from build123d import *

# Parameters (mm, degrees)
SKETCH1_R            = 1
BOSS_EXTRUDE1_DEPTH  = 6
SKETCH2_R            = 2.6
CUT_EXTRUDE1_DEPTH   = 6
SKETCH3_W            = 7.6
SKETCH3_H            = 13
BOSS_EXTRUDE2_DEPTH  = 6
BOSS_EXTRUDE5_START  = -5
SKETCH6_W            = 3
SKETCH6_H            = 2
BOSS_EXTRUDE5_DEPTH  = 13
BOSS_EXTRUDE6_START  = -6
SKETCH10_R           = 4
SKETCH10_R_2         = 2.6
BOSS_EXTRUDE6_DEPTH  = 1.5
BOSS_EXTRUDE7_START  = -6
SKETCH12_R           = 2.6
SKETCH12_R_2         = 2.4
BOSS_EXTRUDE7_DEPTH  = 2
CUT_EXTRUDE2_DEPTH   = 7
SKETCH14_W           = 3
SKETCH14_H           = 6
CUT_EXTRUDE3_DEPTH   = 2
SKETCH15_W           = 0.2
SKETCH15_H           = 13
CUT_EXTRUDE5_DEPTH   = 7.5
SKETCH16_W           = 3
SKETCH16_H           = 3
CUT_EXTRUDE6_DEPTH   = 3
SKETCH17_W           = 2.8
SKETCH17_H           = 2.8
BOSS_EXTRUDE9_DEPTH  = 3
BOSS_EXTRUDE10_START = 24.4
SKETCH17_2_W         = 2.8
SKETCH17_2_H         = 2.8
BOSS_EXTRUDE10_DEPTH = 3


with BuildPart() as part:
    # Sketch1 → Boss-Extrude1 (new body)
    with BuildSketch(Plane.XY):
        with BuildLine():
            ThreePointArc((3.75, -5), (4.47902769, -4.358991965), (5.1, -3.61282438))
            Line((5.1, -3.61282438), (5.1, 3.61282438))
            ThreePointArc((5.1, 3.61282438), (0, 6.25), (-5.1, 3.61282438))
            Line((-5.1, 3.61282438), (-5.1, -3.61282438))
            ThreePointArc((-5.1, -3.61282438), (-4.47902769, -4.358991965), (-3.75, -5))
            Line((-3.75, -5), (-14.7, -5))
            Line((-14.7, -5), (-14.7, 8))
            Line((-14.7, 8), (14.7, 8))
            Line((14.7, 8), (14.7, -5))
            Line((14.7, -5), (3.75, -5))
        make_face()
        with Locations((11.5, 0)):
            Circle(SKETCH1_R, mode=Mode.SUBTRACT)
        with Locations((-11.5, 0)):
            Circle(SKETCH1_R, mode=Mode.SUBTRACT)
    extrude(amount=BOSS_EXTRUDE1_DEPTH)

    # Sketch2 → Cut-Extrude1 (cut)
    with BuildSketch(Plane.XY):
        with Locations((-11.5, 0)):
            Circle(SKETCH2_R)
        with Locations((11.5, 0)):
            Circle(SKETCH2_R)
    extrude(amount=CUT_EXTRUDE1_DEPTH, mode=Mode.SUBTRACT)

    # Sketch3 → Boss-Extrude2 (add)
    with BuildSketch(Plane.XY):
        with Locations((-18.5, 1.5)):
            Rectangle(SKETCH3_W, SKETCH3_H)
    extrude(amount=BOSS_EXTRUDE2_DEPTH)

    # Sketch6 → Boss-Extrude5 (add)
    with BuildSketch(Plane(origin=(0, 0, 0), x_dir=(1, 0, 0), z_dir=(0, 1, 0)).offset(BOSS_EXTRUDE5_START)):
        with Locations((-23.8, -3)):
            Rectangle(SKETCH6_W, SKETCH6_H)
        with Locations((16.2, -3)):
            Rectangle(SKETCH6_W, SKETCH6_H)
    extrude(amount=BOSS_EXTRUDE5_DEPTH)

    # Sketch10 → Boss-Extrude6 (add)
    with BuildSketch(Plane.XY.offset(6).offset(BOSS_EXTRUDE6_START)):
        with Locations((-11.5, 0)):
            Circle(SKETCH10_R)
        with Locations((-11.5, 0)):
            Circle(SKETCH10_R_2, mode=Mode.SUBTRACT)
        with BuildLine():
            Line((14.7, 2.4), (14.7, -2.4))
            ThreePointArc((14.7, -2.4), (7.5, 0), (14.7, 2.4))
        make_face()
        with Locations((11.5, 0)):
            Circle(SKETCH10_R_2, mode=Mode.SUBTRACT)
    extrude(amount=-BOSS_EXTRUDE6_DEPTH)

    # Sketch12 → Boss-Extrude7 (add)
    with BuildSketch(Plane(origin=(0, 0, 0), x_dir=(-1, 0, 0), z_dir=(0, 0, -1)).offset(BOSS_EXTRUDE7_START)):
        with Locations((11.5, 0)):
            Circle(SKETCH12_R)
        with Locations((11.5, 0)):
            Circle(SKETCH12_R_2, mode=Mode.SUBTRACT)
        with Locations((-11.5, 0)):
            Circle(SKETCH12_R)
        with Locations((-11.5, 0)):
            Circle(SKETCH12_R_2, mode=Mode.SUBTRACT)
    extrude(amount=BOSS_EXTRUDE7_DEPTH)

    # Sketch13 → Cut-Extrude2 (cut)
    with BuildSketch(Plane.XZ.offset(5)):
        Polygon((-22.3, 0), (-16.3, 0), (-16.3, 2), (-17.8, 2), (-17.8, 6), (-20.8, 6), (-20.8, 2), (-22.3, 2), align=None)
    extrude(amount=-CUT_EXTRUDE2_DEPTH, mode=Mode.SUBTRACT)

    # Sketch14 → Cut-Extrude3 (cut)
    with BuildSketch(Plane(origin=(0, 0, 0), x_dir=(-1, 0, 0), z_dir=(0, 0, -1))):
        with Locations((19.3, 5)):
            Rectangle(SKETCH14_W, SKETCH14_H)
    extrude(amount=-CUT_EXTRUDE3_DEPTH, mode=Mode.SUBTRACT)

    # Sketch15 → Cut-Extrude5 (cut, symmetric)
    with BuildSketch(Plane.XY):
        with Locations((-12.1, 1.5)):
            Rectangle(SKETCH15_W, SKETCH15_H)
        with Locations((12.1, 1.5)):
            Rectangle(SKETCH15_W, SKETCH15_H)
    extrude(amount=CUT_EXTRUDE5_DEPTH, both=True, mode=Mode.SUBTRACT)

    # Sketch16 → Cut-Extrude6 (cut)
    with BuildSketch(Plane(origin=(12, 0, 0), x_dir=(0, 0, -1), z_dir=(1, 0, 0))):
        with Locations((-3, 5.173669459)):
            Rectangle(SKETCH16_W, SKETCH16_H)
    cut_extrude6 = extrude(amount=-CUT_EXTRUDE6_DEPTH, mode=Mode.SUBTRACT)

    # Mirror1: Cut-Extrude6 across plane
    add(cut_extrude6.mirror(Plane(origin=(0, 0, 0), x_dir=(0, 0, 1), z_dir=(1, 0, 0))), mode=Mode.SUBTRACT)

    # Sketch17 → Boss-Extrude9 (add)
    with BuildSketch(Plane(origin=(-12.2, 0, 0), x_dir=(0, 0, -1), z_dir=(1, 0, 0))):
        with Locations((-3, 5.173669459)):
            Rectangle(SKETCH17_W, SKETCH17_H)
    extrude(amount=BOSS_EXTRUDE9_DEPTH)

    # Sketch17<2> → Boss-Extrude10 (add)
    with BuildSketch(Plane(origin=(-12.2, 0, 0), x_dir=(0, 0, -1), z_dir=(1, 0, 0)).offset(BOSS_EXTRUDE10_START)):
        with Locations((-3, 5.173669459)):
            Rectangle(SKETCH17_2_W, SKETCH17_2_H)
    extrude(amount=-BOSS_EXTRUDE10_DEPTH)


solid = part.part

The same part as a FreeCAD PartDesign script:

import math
import FreeCAD as App
import Part
import Sketcher
from FreeCAD import Vector

doc = App.newDocument("Part")
body = doc.addObject("PartDesign::Body", "Body")
body.AllowCompound = True

# Sketch on XY plane
sketch1 = body.newObject("Sketcher::SketchObject", "Sketch")
sketch1.AttachmentSupport = (doc.getObject("XY_Plane"), [""])
sketch1.MapMode = "FlatFace"
sketch1.addGeometry(Part.ArcOfCircle(Part.Circle(Vector(0, 0, 0), Vector(0, 0, 1), 6.25), math.radians(-53.130102), math.radians(-35.31364)), False)
sketch1.addGeometry(Part.LineSegment(Vector(3.75, -5, 0), Vector(14.7, -5, 0)), False)
sketch1.addGeometry(Part.LineSegment(Vector(14.7, -5, 0), Vector(14.7, 8, 0)), False)
sketch1.addGeometry(Part.LineSegment(Vector(14.7, 8, 0), Vector(-14.7, 8, 0)), False)
sketch1.addGeometry(Part.LineSegment(Vector(-14.7, 8, 0), Vector(-14.7, -5, 0)), False)
sketch1.addGeometry(Part.LineSegment(Vector(-14.7, -5, 0), Vector(-3.75, -5, 0)), False)
sketch1.addGeometry(Part.ArcOfCircle(Part.Circle(Vector(0, 0, 0), Vector(0, 0, 1), 6.25), math.radians(-144.68636), math.radians(-126.869898)), False)
sketch1.addGeometry(Part.LineSegment(Vector(-5.1, -3.612824, 0), Vector(-5.1, 3.612824, 0)), False)
sketch1.addGeometry(Part.ArcOfCircle(Part.Circle(Vector(0, 0, 0), Vector(0, 0, 1), 6.25), math.radians(35.31364), math.radians(144.68636)), False)
sketch1.addGeometry(Part.LineSegment(Vector(5.1, 3.612824, 0), Vector(5.1, -3.612824, 0)), False)
sketch1.addGeometry(Part.Circle(Vector(11.5, 0, 0), Vector(0, 0, 1), 1), False)
sketch1.addGeometry(Part.Circle(Vector(-11.5, 0, 0), Vector(0, 0, 1), 1), False)
sketch1.addConstraint(Sketcher.Constraint("Coincident", 0, 1, 1, 1))
sketch1.addConstraint(Sketcher.Constraint("Coincident", 1, 2, 2, 1))
sketch1.addConstraint(Sketcher.Constraint("Coincident", 2, 2, 3, 1))
sketch1.addConstraint(Sketcher.Constraint("Coincident", 3, 2, 4, 1))
sketch1.addConstraint(Sketcher.Constraint("Coincident", 4, 2, 5, 1))
sketch1.addConstraint(Sketcher.Constraint("Coincident", 5, 2, 6, 2))
sketch1.addConstraint(Sketcher.Constraint("Coincident", 6, 1, 7, 1))
sketch1.addConstraint(Sketcher.Constraint("Coincident", 7, 2, 8, 2))
sketch1.addConstraint(Sketcher.Constraint("Coincident", 8, 1, 9, 1))
sketch1.addConstraint(Sketcher.Constraint("Coincident", 9, 2, 0, 2))
sketch1.addConstraint(Sketcher.Constraint("Horizontal", 1))
sketch1.addConstraint(Sketcher.Constraint("Vertical", 2))
sketch1.addConstraint(Sketcher.Constraint("Horizontal", 3))
sketch1.addConstraint(Sketcher.Constraint("Vertical", 4))
sketch1.addConstraint(Sketcher.Constraint("Horizontal", 5))
sketch1.addConstraint(Sketcher.Constraint("Vertical", 7))
sketch1.addConstraint(Sketcher.Constraint("Vertical", 9))
sketch1.addConstraint(Sketcher.Constraint("Coincident", 0, 3, -1, 1))
sketch1.addConstraint(Sketcher.Constraint("Coincident", 6, 3, -1, 1))
sketch1.addConstraint(Sketcher.Constraint("Coincident", 8, 3, -1, 1))
sketch1.addConstraint(Sketcher.Constraint("Equal", 0, 6))
sketch1.addConstraint(Sketcher.Constraint("Equal", 6, 8))
sketch1.addConstraint(Sketcher.Constraint("Equal", 10, 11))
sketch1.addConstraint(Sketcher.Constraint("Symmetric", 10, 3, 11, 3, -1, 1))
sketch1.addConstraint(Sketcher.Constraint("Symmetric", 1, 2, 4, 2, -2))
sketch1.addConstraint(Sketcher.Constraint("PointOnObject", 10, 3, -1))
sketch1.addConstraint(Sketcher.Constraint("Horizontal", 7, 2, 8, 1))
sketch1.addConstraint(Sketcher.Constraint("Diameter", 10, 2.0))
sketch1.addConstraint(Sketcher.Constraint("DistanceY", 2, 1, 2, 2, 13.0))
sketch1.addConstraint(Sketcher.Constraint("Radius", 0, 6.25))
sketch1.addConstraint(Sketcher.Constraint("DistanceX", 3, 2, 3, 1, 29.4))
sketch1.addConstraint(Sketcher.Constraint("DistanceY", 0, 1, -1, 1, 5.0))
sketch1.addConstraint(Sketcher.Constraint("DistanceX", 11, 3, 10, 3, 23.0))
sketch1.addConstraint(Sketcher.Constraint("DistanceX", 6, 1, -1, 1, 5.1))
pad1 = body.newObject("PartDesign::Pad", "Pad")
pad1.Profile = sketch1
pad1.Length = 6

# Sketch on XY plane
sketch2 = body.newObject("Sketcher::SketchObject", "Sketch001")
sketch2.AttachmentSupport = (doc.getObject("XY_Plane"), [""])
sketch2.MapMode = "FlatFace"
sketch2.addGeometry(Part.Circle(Vector(-11.5, 0, 0), Vector(0, 0, 1), 2.6), False)
sketch2.addGeometry(Part.Circle(Vector(11.5, 0, 0), Vector(0, 0, 1), 2.6), False)
sketch2.addConstraint(Sketcher.Constraint("Equal", 0, 1))
sketch2.addConstraint(Sketcher.Constraint("Symmetric", 0, 3, 1, 3, -1, 1))
sketch2.addConstraint(Sketcher.Constraint("PointOnObject", 0, 3, -1))
sketch2.addConstraint(Sketcher.Constraint("Diameter", 0, 5.2))
sketch2.addConstraint(Sketcher.Constraint("DistanceX", 0, 3, 1, 3, 23.0))
pocket1 = body.newObject("PartDesign::Pocket", "Pocket")
pocket1.Profile = sketch2
pocket1.Length = 6
pocket1.Reversed = True

# Sketch on XY plane
sketch3 = body.newObject("Sketcher::SketchObject", "Sketch002")
sketch3.AttachmentSupport = (doc.getObject("XY_Plane"), [""])
sketch3.MapMode = "FlatFace"
sketch3.addGeometry(Part.LineSegment(Vector(-22.3, 8, 0), Vector(-22.3, -5, 0)), False)
sketch3.addGeometry(Part.LineSegment(Vector(-22.3, -5, 0), Vector(-14.7, -5, 0)), False)
sketch3.addGeometry(Part.LineSegment(Vector(-14.7, -5, 0), Vector(-14.7, 8, 0)), False)
sketch3.addGeometry(Part.LineSegment(Vector(-14.7, 8, 0), Vector(-22.3, 8, 0)), False)
sketch3.addConstraint(Sketcher.Constraint("Coincident", 0, 2, 1, 1))
sketch3.addConstraint(Sketcher.Constraint("Coincident", 1, 2, 2, 1))
sketch3.addConstraint(Sketcher.Constraint("Coincident", 2, 2, 3, 1))
sketch3.addConstraint(Sketcher.Constraint("Coincident", 3, 2, 0, 1))
sketch3.addConstraint(Sketcher.Constraint("Vertical", 0))
sketch3.addConstraint(Sketcher.Constraint("Horizontal", 1))
sketch3.addConstraint(Sketcher.Constraint("Vertical", 2))
sketch3.addConstraint(Sketcher.Constraint("Horizontal", 3))
sketch3.addConstraint(Sketcher.Constraint("DistanceY", 0, 2, 0, 1, 13.0))
sketch3.addConstraint(Sketcher.Constraint("DistanceX", 1, 1, 1, 2, 7.6))
sketch3.addConstraint(Sketcher.Constraint("DistanceY", 0, 2, -1, 1, 5.0))
sketch3.addConstraint(Sketcher.Constraint("DistanceX", 0, 2, -1, 1, 22.3))
pad2 = body.newObject("PartDesign::Pad", "Pad001")
pad2.Profile = sketch3
pad2.Length = 6

# Sketch on XZ plane
sketch4 = body.newObject("Sketcher::SketchObject", "Sketch003")
sketch4.AttachmentSupport = (doc.getObject("XZ_Plane"), [""])
sketch4.MapMode = "FlatFace"
sketch4.AttachmentOffset = App.Placement(Vector(0, 0, 5), App.Rotation())
sketch4.addGeometry(Part.LineSegment(Vector(-25.3, 2, 0), Vector(-25.3, 4, 0)), False)
sketch4.addGeometry(Part.LineSegment(Vector(-25.3, 4, 0), Vector(-22.3, 4, 0)), False)
sketch4.addGeometry(Part.LineSegment(Vector(-22.3, 4, 0), Vector(-22.3, 2, 0)), False)
sketch4.addGeometry(Part.LineSegment(Vector(-22.3, 2, 0), Vector(-25.3, 2, 0)), False)
sketch4.addGeometry(Part.LineSegment(Vector(14.7, 2, 0), Vector(14.7, 4, 0)), False)
sketch4.addGeometry(Part.LineSegment(Vector(14.7, 4, 0), Vector(17.7, 4, 0)), False)
sketch4.addGeometry(Part.LineSegment(Vector(17.7, 4, 0), Vector(17.7, 2, 0)), False)
sketch4.addGeometry(Part.LineSegment(Vector(17.7, 2, 0), Vector(14.7, 2, 0)), False)
sketch4.addConstraint(Sketcher.Constraint("Coincident", 0, 2, 1, 1))
sketch4.addConstraint(Sketcher.Constraint("Coincident", 1, 2, 2, 1))
sketch4.addConstraint(Sketcher.Constraint("Coincident", 2, 2, 3, 1))
sketch4.addConstraint(Sketcher.Constraint("Coincident", 3, 2, 0, 1))
sketch4.addConstraint(Sketcher.Constraint("Coincident", 4, 2, 5, 1))
sketch4.addConstraint(Sketcher.Constraint("Coincident", 5, 2, 6, 1))
sketch4.addConstraint(Sketcher.Constraint("Coincident", 6, 2, 7, 1))
sketch4.addConstraint(Sketcher.Constraint("Coincident", 7, 2, 4, 1))
sketch4.addConstraint(Sketcher.Constraint("Vertical", 0))
sketch4.addConstraint(Sketcher.Constraint("Horizontal", 1))
sketch4.addConstraint(Sketcher.Constraint("Vertical", 2))
sketch4.addConstraint(Sketcher.Constraint("Horizontal", 3))
sketch4.addConstraint(Sketcher.Constraint("Vertical", 4))
sketch4.addConstraint(Sketcher.Constraint("Horizontal", 5))
sketch4.addConstraint(Sketcher.Constraint("Vertical", 6))
sketch4.addConstraint(Sketcher.Constraint("Horizontal", 7))
sketch4.addConstraint(Sketcher.Constraint("Horizontal", 1, 2, 4, 2))
sketch4.addConstraint(Sketcher.Constraint("Horizontal", 3, 2, 6, 2))
sketch4.addConstraint(Sketcher.Constraint("Equal", 3, 5))
sketch4.addConstraint(Sketcher.Constraint("DistanceX", 1, 1, 1, 2, 3.0))
sketch4.addConstraint(Sketcher.Constraint("DistanceY", 0, 1, 0, 2, 2.0))
sketch4.addConstraint(Sketcher.Constraint("DistanceY", -1, 1, 0, 2, 4.0))
sketch4.addConstraint(Sketcher.Constraint("DistanceX", 1, 2, 4, 2, 37.0))
sketch4.addConstraint(Sketcher.Constraint("DistanceX", 0, 2, -1, 1, 25.3))
pad3 = body.newObject("PartDesign::Pad", "Pad002")
pad3.Profile = sketch4
pad3.Length = 13
pad3.Reversed = True

# Sketch on XY plane
sketch5 = body.newObject("Sketcher::SketchObject", "Sketch004")
sketch5.AttachmentSupport = (doc.getObject("XY_Plane"), [""])
sketch5.MapMode = "FlatFace"
sketch5.addGeometry(Part.Circle(Vector(-11.5, 0, 0), Vector(0, 0, 1), 4), False)
sketch5.addGeometry(Part.Circle(Vector(-11.5, 0, 0), Vector(0, 0, 1), 2.6), False)
sketch5.addGeometry(Part.LineSegment(Vector(14.7, -2.4, 0), Vector(14.7, 2.4, 0)), False)
sketch5.addGeometry(Part.ArcOfCircle(Part.Circle(Vector(11.5, 0, 0), Vector(0, 0, 1), 4), math.radians(36.869898), math.radians(323.130102)), False)
sketch5.addGeometry(Part.Circle(Vector(11.5, 0, 0), Vector(0, 0, 1), 2.6), False)
sketch5.addConstraint(Sketcher.Constraint("Coincident", 2, 1, 3, 2))
sketch5.addConstraint(Sketcher.Constraint("Coincident", 3, 1, 2, 2))
sketch5.addConstraint(Sketcher.Constraint("Vertical", 2))
sketch5.addConstraint(Sketcher.Constraint("Coincident", 1, 3, 0, 3))
sketch5.addConstraint(Sketcher.Constraint("Coincident", 4, 3, 3, 3))
sketch5.addConstraint(Sketcher.Constraint("Equal", 0, 3))
sketch5.addConstraint(Sketcher.Constraint("Equal", 1, 4))
sketch5.addConstraint(Sketcher.Constraint("Symmetric", 0, 3, 3, 3, -1, 1))
sketch5.addConstraint(Sketcher.Constraint("PointOnObject", 0, 3, -1))
sketch5.addConstraint(Sketcher.Constraint("Diameter", 0, 8.0))
sketch5.addConstraint(Sketcher.Constraint("Diameter", 1, 5.2))
sketch5.addConstraint(Sketcher.Constraint("DistanceY", 2, 1, 2, 2, 4.8))
sketch5.addConstraint(Sketcher.Constraint("DistanceX", 0, 3, 3, 3, 23.0))
pad4 = body.newObject("PartDesign::Pad", "Pad003")
pad4.Profile = sketch5
pad4.Length = 1.5
pad4.Reversed = True

# Sketch on XY plane
sketch6 = body.newObject("Sketcher::SketchObject", "Sketch005")
sketch6.AttachmentSupport = (doc.getObject("XY_Plane"), [""])
sketch6.MapMode = "FlatFace"
sketch6.AttachmentOffset = App.Placement(Vector(0, 0, 6), App.Rotation())
sketch6.addGeometry(Part.Circle(Vector(-11.5, 0, 0), Vector(0, 0, 1), 2.6), False)
sketch6.addGeometry(Part.Circle(Vector(-11.5, 0, 0), Vector(0, 0, 1), 2.4), False)
sketch6.addGeometry(Part.Circle(Vector(11.5, 0, 0), Vector(0, 0, 1), 2.6), False)
sketch6.addGeometry(Part.Circle(Vector(11.5, 0, 0), Vector(0, 0, 1), 2.4), False)
sketch6.addConstraint(Sketcher.Constraint("Coincident", 1, 3, 0, 3))
sketch6.addConstraint(Sketcher.Constraint("Coincident", 3, 3, 2, 3))
sketch6.addConstraint(Sketcher.Constraint("Equal", 0, 2))
sketch6.addConstraint(Sketcher.Constraint("Equal", 1, 3))
sketch6.addConstraint(Sketcher.Constraint("Symmetric", 0, 3, 2, 3, -1, 1))
sketch6.addConstraint(Sketcher.Constraint("PointOnObject", 0, 3, -1))
sketch6.addConstraint(Sketcher.Constraint("Diameter", 0, 5.2))
sketch6.addConstraint(Sketcher.Constraint("Diameter", 1, 4.8))
sketch6.addConstraint(Sketcher.Constraint("DistanceX", 0, 3, 2, 3, 23.0))
pad5 = body.newObject("PartDesign::Pad", "Pad004")
pad5.Profile = sketch6
pad5.Length = 2
pad5.Reversed = True

# Sketch on XZ plane
sketch7 = body.newObject("Sketcher::SketchObject", "Sketch006")
sketch7.AttachmentSupport = (doc.getObject("XZ_Plane"), [""])
sketch7.MapMode = "FlatFace"
sketch7.AttachmentOffset = App.Placement(Vector(0, 0, 5), App.Rotation())
sketch7.addGeometry(Part.LineSegment(Vector(-22.3, 0, 0), Vector(-16.3, 0, 0)), False)
sketch7.addGeometry(Part.LineSegment(Vector(-16.3, 0, 0), Vector(-16.3, 2, 0)), False)
sketch7.addGeometry(Part.LineSegment(Vector(-16.3, 2, 0), Vector(-17.8, 2, 0)), False)
sketch7.addGeometry(Part.LineSegment(Vector(-17.8, 2, 0), Vector(-17.8, 6, 0)), False)
sketch7.addGeometry(Part.LineSegment(Vector(-17.8, 6, 0), Vector(-20.8, 6, 0)), False)
sketch7.addGeometry(Part.LineSegment(Vector(-20.8, 6, 0), Vector(-20.8, 2, 0)), False)
sketch7.addGeometry(Part.LineSegment(Vector(-20.8, 2, 0), Vector(-22.3, 2, 0)), False)
sketch7.addGeometry(Part.LineSegment(Vector(-22.3, 2, 0), Vector(-22.3, 0, 0)), False)
sketch7.addConstraint(Sketcher.Constraint("Coincident", 0, 2, 1, 1))
sketch7.addConstraint(Sketcher.Constraint("Coincident", 1, 2, 2, 1))
sketch7.addConstraint(Sketcher.Constraint("Coincident", 2, 2, 3, 1))
sketch7.addConstraint(Sketcher.Constraint("Coincident", 3, 2, 4, 1))
sketch7.addConstraint(Sketcher.Constraint("Coincident", 4, 2, 5, 1))
sketch7.addConstraint(Sketcher.Constraint("Coincident", 5, 2, 6, 1))
sketch7.addConstraint(Sketcher.Constraint("Coincident", 6, 2, 7, 1))
sketch7.addConstraint(Sketcher.Constraint("Coincident", 7, 2, 0, 1))
sketch7.addConstraint(Sketcher.Constraint("Horizontal", 0))
sketch7.addConstraint(Sketcher.Constraint("Vertical", 1))
sketch7.addConstraint(Sketcher.Constraint("Horizontal", 2))
sketch7.addConstraint(Sketcher.Constraint("Vertical", 3))
sketch7.addConstraint(Sketcher.Constraint("Horizontal", 4))
sketch7.addConstraint(Sketcher.Constraint("Vertical", 5))
sketch7.addConstraint(Sketcher.Constraint("Horizontal", 6))
sketch7.addConstraint(Sketcher.Constraint("Vertical", 7))
sketch7.addConstraint(Sketcher.Constraint("PointOnObject", 0, 2, -1))
sketch7.addConstraint(Sketcher.Constraint("Horizontal", 2, 2, 5, 2))
sketch7.addConstraint(Sketcher.Constraint("Equal", 2, 6))
sketch7.addConstraint(Sketcher.Constraint("DistanceX", 0, 1, 0, 2, 6.0))
sketch7.addConstraint(Sketcher.Constraint("DistanceX", 4, 2, 4, 1, 3.0))
sketch7.addConstraint(Sketcher.Constraint("DistanceY", 1, 1, 1, 2, 2.0))
sketch7.addConstraint(Sketcher.Constraint("DistanceY", 3, 1, 3, 2, 4.0))
sketch7.addConstraint(Sketcher.Constraint("DistanceX", 0, 2, -1, 1, 16.3))
pocket2 = body.newObject("PartDesign::Pocket", "Pocket001")
pocket2.Profile = sketch7
pocket2.Length = 7

# Sketch on XY plane
sketch8 = body.newObject("Sketcher::SketchObject", "Sketch007")
sketch8.AttachmentSupport = (doc.getObject("XY_Plane"), [""])
sketch8.MapMode = "FlatFace"
sketch8.addGeometry(Part.LineSegment(Vector(-17.8, 8, 0), Vector(-17.8, 2, 0)), False)
sketch8.addGeometry(Part.LineSegment(Vector(-17.8, 2, 0), Vector(-20.8, 2, 0)), False)
sketch8.addGeometry(Part.LineSegment(Vector(-20.8, 2, 0), Vector(-20.8, 8, 0)), False)
sketch8.addGeometry(Part.LineSegment(Vector(-20.8, 8, 0), Vector(-17.8, 8, 0)), False)
sketch8.addConstraint(Sketcher.Constraint("Coincident", 0, 2, 1, 1))
sketch8.addConstraint(Sketcher.Constraint("Coincident", 1, 2, 2, 1))
sketch8.addConstraint(Sketcher.Constraint("Coincident", 2, 2, 3, 1))
sketch8.addConstraint(Sketcher.Constraint("Coincident", 3, 2, 0, 1))
sketch8.addConstraint(Sketcher.Constraint("Vertical", 0))
sketch8.addConstraint(Sketcher.Constraint("Horizontal", 1))
sketch8.addConstraint(Sketcher.Constraint("Vertical", 2))
sketch8.addConstraint(Sketcher.Constraint("Horizontal", 3))
sketch8.addConstraint(Sketcher.Constraint("DistanceX", 1, 2, 1, 1, 3.0))
sketch8.addConstraint(Sketcher.Constraint("DistanceY", 0, 2, 0, 1, 6.0))
sketch8.addConstraint(Sketcher.Constraint("DistanceY", -1, 1, 0, 2, 2.0))
sketch8.addConstraint(Sketcher.Constraint("DistanceX", 0, 2, -1, 1, 17.8))
pocket3 = body.newObject("PartDesign::Pocket", "Pocket002")
pocket3.Profile = sketch8
pocket3.Length = 2
pocket3.Reversed = True

# Sketch on XY plane
sketch9 = body.newObject("Sketcher::SketchObject", "Sketch008")
sketch9.AttachmentSupport = (doc.getObject("XY_Plane"), [""])
sketch9.MapMode = "FlatFace"
sketch9.addGeometry(Part.LineSegment(Vector(-12.2, 8, 0), Vector(-12.2, -5, 0)), False)
sketch9.addGeometry(Part.LineSegment(Vector(-12.2, -5, 0), Vector(-12, -5, 0)), False)
sketch9.addGeometry(Part.LineSegment(Vector(-12, -5, 0), Vector(-12, 8, 0)), False)
sketch9.addGeometry(Part.LineSegment(Vector(-12, 8, 0), Vector(-12.2, 8, 0)), False)
sketch9.addGeometry(Part.LineSegment(Vector(12, 8, 0), Vector(12, -5, 0)), False)
sketch9.addGeometry(Part.LineSegment(Vector(12, -5, 0), Vector(12.2, -5, 0)), False)
sketch9.addGeometry(Part.LineSegment(Vector(12.2, -5, 0), Vector(12.2, 8, 0)), False)
sketch9.addGeometry(Part.LineSegment(Vector(12.2, 8, 0), Vector(12, 8, 0)), False)
sketch9.addConstraint(Sketcher.Constraint("Coincident", 0, 2, 1, 1))
sketch9.addConstraint(Sketcher.Constraint("Coincident", 1, 2, 2, 1))
sketch9.addConstraint(Sketcher.Constraint("Coincident", 2, 2, 3, 1))
sketch9.addConstraint(Sketcher.Constraint("Coincident", 3, 2, 0, 1))
sketch9.addConstraint(Sketcher.Constraint("Coincident", 4, 2, 5, 1))
sketch9.addConstraint(Sketcher.Constraint("Coincident", 5, 2, 6, 1))
sketch9.addConstraint(Sketcher.Constraint("Coincident", 6, 2, 7, 1))
sketch9.addConstraint(Sketcher.Constraint("Coincident", 7, 2, 4, 1))
sketch9.addConstraint(Sketcher.Constraint("Vertical", 0))
sketch9.addConstraint(Sketcher.Constraint("Horizontal", 1))
sketch9.addConstraint(Sketcher.Constraint("Vertical", 2))
sketch9.addConstraint(Sketcher.Constraint("Horizontal", 3))
sketch9.addConstraint(Sketcher.Constraint("Vertical", 4))
sketch9.addConstraint(Sketcher.Constraint("Horizontal", 5))
sketch9.addConstraint(Sketcher.Constraint("Vertical", 6))
sketch9.addConstraint(Sketcher.Constraint("Horizontal", 7))
sketch9.addConstraint(Sketcher.Constraint("Symmetric", 1, 2, 4, 2, -2))
sketch9.addConstraint(Sketcher.Constraint("Symmetric", 3, 2, 6, 2, -2))
sketch9.addConstraint(Sketcher.Constraint("DistanceY", 0, 2, 0, 1, 13.0))
sketch9.addConstraint(Sketcher.Constraint("DistanceX", 1, 1, 1, 2, 0.2))
sketch9.addConstraint(Sketcher.Constraint("DistanceY", 0, 2, -1, 1, 5.0))
sketch9.addConstraint(Sketcher.Constraint("DistanceX", 1, 2, -1, 1, 12.0))
pocket4 = body.newObject("PartDesign::Pocket", "Pocket003")
pocket4.Profile = sketch9
pocket4.Length = 15
pocket4.Midplane = True

# Sketch on YZ plane
sketch10 = body.newObject("Sketcher::SketchObject", "Sketch009")
sketch10.AttachmentSupport = (doc.getObject("YZ_Plane"), [""])
sketch10.MapMode = "FlatFace"
sketch10.AttachmentOffset = App.Placement(Vector(0, 0, 12), App.Rotation())
sketch10.addGeometry(Part.LineSegment(Vector(6.673669, 4.5, 0), Vector(3.673669, 4.5, 0)), False)
sketch10.addGeometry(Part.LineSegment(Vector(3.673669, 4.5, 0), Vector(3.673669, 1.5, 0)), False)
sketch10.addGeometry(Part.LineSegment(Vector(3.673669, 1.5, 0), Vector(6.673669, 1.5, 0)), False)
sketch10.addGeometry(Part.LineSegment(Vector(6.673669, 1.5, 0), Vector(6.673669, 4.5, 0)), False)
sketch10.addConstraint(Sketcher.Constraint("Coincident", 0, 2, 1, 1))
sketch10.addConstraint(Sketcher.Constraint("Coincident", 1, 2, 2, 1))
sketch10.addConstraint(Sketcher.Constraint("Coincident", 2, 2, 3, 1))
sketch10.addConstraint(Sketcher.Constraint("Coincident", 3, 2, 0, 1))
sketch10.addConstraint(Sketcher.Constraint("Horizontal", 0))
sketch10.addConstraint(Sketcher.Constraint("Vertical", 1))
sketch10.addConstraint(Sketcher.Constraint("Horizontal", 2))
sketch10.addConstraint(Sketcher.Constraint("Vertical", 3))
sketch10.addConstraint(Sketcher.Constraint("Equal", 2, 1))
sketch10.addConstraint(Sketcher.Constraint("DistanceX", 0, 2, 0, 1, 3.0))
sketch10.addConstraint(Sketcher.Constraint("DistanceY", -1, 1, 0, 2, 4.5))
sketch10.addConstraint(Sketcher.Constraint("DistanceX", -1, 1, 0, 2, 3.673669))
pocket5 = body.newObject("PartDesign::Pocket", "Pocket004")
pocket5.Profile = sketch10
pocket5.Length = 3
doc.recompute()

mirrored = body.newObject("PartDesign::Mirrored", "Mirrored")
mirrored.Originals = [pocket5]
mirrored.MirrorPlane = (doc.getObject("YZ_Plane"), [""])
body.Tip = mirrored

# Sketch on YZ plane
sketch11 = body.newObject("Sketcher::SketchObject", "Sketch010")
sketch11.AttachmentSupport = (doc.getObject("YZ_Plane"), [""])
sketch11.MapMode = "FlatFace"
sketch11.AttachmentOffset = App.Placement(Vector(0, 0, -12.2), App.Rotation())
sketch11.addGeometry(Part.LineSegment(Vector(6.573669, 4.4, 0), Vector(3.773669, 4.4, 0)), False)
sketch11.addGeometry(Part.LineSegment(Vector(3.773669, 4.4, 0), Vector(3.773669, 1.6, 0)), False)
sketch11.addGeometry(Part.LineSegment(Vector(3.773669, 1.6, 0), Vector(6.573669, 1.6, 0)), False)
sketch11.addGeometry(Part.LineSegment(Vector(6.573669, 1.6, 0), Vector(6.573669, 4.4, 0)), False)
sketch11.addConstraint(Sketcher.Constraint("Coincident", 0, 2, 1, 1))
sketch11.addConstraint(Sketcher.Constraint("Coincident", 1, 2, 2, 1))
sketch11.addConstraint(Sketcher.Constraint("Coincident", 2, 2, 3, 1))
sketch11.addConstraint(Sketcher.Constraint("Coincident", 3, 2, 0, 1))
sketch11.addConstraint(Sketcher.Constraint("Horizontal", 0))
sketch11.addConstraint(Sketcher.Constraint("Vertical", 1))
sketch11.addConstraint(Sketcher.Constraint("Horizontal", 2))
sketch11.addConstraint(Sketcher.Constraint("Vertical", 3))
sketch11.addConstraint(Sketcher.Constraint("Equal", 2, 1))
sketch11.addConstraint(Sketcher.Constraint("DistanceX", 0, 2, 0, 1, 2.8))
sketch11.addConstraint(Sketcher.Constraint("DistanceY", -1, 1, 0, 2, 4.4))
sketch11.addConstraint(Sketcher.Constraint("DistanceX", -1, 1, 0, 2, 3.773669))
pad6 = body.newObject("PartDesign::Pad", "Pad005")
pad6.Profile = sketch11
pad6.Length = 3

# Sketch on YZ plane
sketch12 = body.newObject("Sketcher::SketchObject", "Sketch011")
sketch12.AttachmentSupport = (doc.getObject("YZ_Plane"), [""])
sketch12.MapMode = "FlatFace"
sketch12.AttachmentOffset = App.Placement(Vector(0, 0, 12.2), App.Rotation())
sketch12.addGeometry(Part.LineSegment(Vector(6.573669, 4.4, 0), Vector(3.773669, 4.4, 0)), False)
sketch12.addGeometry(Part.LineSegment(Vector(3.773669, 4.4, 0), Vector(3.773669, 1.6, 0)), False)
sketch12.addGeometry(Part.LineSegment(Vector(3.773669, 1.6, 0), Vector(6.573669, 1.6, 0)), False)
sketch12.addGeometry(Part.LineSegment(Vector(6.573669, 1.6, 0), Vector(6.573669, 4.4, 0)), False)
sketch12.addConstraint(Sketcher.Constraint("Coincident", 0, 2, 1, 1))
sketch12.addConstraint(Sketcher.Constraint("Coincident", 1, 2, 2, 1))
sketch12.addConstraint(Sketcher.Constraint("Coincident", 2, 2, 3, 1))
sketch12.addConstraint(Sketcher.Constraint("Coincident", 3, 2, 0, 1))
sketch12.addConstraint(Sketcher.Constraint("Horizontal", 0))
sketch12.addConstraint(Sketcher.Constraint("Vertical", 1))
sketch12.addConstraint(Sketcher.Constraint("Horizontal", 2))
sketch12.addConstraint(Sketcher.Constraint("Vertical", 3))
sketch12.addConstraint(Sketcher.Constraint("Equal", 2, 1))
sketch12.addConstraint(Sketcher.Constraint("DistanceX", 0, 2, 0, 1, 2.8))
sketch12.addConstraint(Sketcher.Constraint("DistanceY", -1, 1, 0, 2, 4.4))
sketch12.addConstraint(Sketcher.Constraint("DistanceX", -1, 1, 0, 2, 3.773669))
pad7 = body.newObject("PartDesign::Pad", "Pad006")
pad7.Profile = sketch12
pad7.Length = 3
pad7.Reversed = True

doc.recompute()
